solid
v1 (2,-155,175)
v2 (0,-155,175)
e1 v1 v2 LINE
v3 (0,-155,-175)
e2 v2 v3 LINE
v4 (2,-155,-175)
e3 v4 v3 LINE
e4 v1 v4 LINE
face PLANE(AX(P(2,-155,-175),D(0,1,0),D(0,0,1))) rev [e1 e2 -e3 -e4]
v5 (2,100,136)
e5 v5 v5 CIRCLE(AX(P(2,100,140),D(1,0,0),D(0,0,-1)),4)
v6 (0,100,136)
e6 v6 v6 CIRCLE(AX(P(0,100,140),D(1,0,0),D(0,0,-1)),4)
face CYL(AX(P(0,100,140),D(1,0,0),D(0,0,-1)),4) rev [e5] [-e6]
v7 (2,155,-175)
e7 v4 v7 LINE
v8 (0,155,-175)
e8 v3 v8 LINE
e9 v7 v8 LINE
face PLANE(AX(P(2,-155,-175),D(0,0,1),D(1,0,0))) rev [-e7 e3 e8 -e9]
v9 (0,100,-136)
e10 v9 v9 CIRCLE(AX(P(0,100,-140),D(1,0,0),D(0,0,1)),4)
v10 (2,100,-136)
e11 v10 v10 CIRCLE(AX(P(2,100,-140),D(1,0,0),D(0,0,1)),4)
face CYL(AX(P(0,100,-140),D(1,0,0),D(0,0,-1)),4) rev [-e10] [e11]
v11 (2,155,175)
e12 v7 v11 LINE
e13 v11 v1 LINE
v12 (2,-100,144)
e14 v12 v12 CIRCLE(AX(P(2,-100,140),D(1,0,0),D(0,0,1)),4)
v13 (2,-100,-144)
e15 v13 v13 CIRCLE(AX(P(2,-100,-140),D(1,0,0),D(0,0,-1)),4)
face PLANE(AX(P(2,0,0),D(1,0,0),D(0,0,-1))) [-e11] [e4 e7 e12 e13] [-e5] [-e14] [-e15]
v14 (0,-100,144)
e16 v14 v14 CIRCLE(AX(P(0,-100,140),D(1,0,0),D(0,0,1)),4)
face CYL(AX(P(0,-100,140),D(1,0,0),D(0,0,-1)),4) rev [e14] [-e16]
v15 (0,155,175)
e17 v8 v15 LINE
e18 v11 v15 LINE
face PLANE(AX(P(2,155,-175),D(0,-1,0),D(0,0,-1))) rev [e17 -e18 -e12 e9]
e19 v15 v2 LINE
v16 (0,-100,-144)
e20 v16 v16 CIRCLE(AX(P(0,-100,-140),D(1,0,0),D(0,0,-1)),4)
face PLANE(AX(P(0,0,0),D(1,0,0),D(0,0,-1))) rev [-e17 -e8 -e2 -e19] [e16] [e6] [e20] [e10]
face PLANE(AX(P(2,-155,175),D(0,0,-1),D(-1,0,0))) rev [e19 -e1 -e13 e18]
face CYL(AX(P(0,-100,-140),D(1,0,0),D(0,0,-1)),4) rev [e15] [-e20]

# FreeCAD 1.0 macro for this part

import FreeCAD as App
import Part
import Sketcher
Q = App.Units.Quantity

doc = App.newDocument("Part")
body = doc.addObject("PartDesign::Body", "Body")

# Sketch on YZ plane
sketch1 = body.newObject("Sketcher::SketchObject", "Sketch")
sketch1.AttachmentSupport = (doc.getObject("YZ_Plane"), [""])
sketch1.MapMode = "FlatFace"
sketch1.addGeometry([
    Part.LineSegment(App.Vector(155, 175, 0), App.Vector(-155, 175, 0)),
    Part.LineSegment(App.Vector(-155, 175, 0), App.Vector(-155, -175, 0)),
    Part.LineSegment(App.Vector(-155, -175, 0), App.Vector(155, -175, 0)),
    Part.LineSegment(App.Vector(155, -175, 0), App.Vector(155, 175, 0)),
], False)
sketch1.addConstraint([
    Sketcher.Constraint("Coincident", 0, 2, 1, 1),
    Sketcher.Constraint("Coincident", 1, 2, 2, 1),
    Sketcher.Constraint("Coincident", 2, 2, 3, 1),
    Sketcher.Constraint("Coincident", 3, 2, 0, 1),
    Sketcher.Constraint("Horizontal", 0),
    Sketcher.Constraint("Vertical", 1),
    Sketcher.Constraint("Horizontal", 2),
    Sketcher.Constraint("Vertical", 3),
    Sketcher.Constraint("Symmetric", 0, 2, 2, 2, -1, 1),
    Sketcher.Constraint("DistanceX", 0, 2, 0, 1, Q("310 mm")),
    Sketcher.Constraint("DistanceY", 1, 2, 1, 1, Q("350 mm")),
])
pad1 = body.newObject("PartDesign::Pad", "Pad")
pad1.Profile = sketch1
pad1.Length = 2

# Sketch on YZ plane
sketch2 = body.newObject("Sketcher::SketchObject", "Sketch001")
sketch2.AttachmentSupport = (doc.getObject("YZ_Plane"), [""])
sketch2.MapMode = "FlatFace"
sketch2.AttachmentOffset = App.Placement(App.Vector(0, 0, 2), App.Rotation())
sketch2.addGeometry([
    Part.Circle(App.Vector(100, 140, 0), App.Vector(0, 0, 1), 4),
    Part.Circle(App.Vector(-100, 140, 0), App.Vector(0, 0, 1), 4),
    Part.Circle(App.Vector(-100, -140, 0), App.Vector(0, 0, 1), 4),
    Part.Circle(App.Vector(100, -140, 0), App.Vector(0, 0, 1), 4),
], False)
sketch2.addConstraint([
    Sketcher.Constraint("Equal", 0, 1),
    Sketcher.Constraint("Equal", 1, 2),
    Sketcher.Constraint("Equal", 2, 3),
    Sketcher.Constraint("Symmetric", 0, 3, 2, 3, -1, 1),
    Sketcher.Constraint("Symmetric", 1, 3, 3, 3, -1, 1),
    Sketcher.Constraint("Symmetric", 0, 3, 1, 3, -2),
    Sketcher.Constraint("Diameter", 0, Q("8 mm")),
    Sketcher.Constraint("DistanceX", -1, 1, 0, 3, Q("100 mm")),
    Sketcher.Constraint("DistanceY", -1, 1, 0, 3, Q("140 mm")),
])
pocket1 = body.newObject("PartDesign::Pocket", "Pocket")
pocket1.Profile = sketch2
pocket1.Type = "ThroughAll"

doc.recompute()
